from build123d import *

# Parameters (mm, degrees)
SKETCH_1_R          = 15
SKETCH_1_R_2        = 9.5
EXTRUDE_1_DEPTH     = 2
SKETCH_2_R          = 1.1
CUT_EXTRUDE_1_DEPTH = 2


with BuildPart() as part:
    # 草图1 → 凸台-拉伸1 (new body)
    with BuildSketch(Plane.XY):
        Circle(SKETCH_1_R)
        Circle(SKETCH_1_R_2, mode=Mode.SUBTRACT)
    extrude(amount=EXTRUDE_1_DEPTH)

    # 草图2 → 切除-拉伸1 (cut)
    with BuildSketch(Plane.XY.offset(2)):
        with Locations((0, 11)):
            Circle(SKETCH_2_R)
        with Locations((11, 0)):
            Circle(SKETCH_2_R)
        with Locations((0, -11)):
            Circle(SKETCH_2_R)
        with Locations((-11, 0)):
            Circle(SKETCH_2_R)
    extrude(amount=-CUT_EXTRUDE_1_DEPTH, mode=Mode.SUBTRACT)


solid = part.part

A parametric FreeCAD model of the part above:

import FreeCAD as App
import Part
import Sketcher
from FreeCAD import Vector
Q = App.Units.Quantity

doc = App.newDocument("Part")
body = doc.addObject("PartDesign::Body", "Body")

sketch1 = doc.addObject("Sketcher::SketchObject", "Sketch")
body.addObject(sketch1)
sketch1.AttachmentSupport = (doc.XY_Plane, [""])
sketch1.MapMode = "FlatFace"
sketch1.addGeometry([
    Part.Circle(Vector(0, 0, 0), Vector(0, 0, 1), 15),
    Part.Circle(Vector(0, 0, 0), Vector(0, 0, 1), 10),
], False)
sketch1.addConstraint([
    Sketcher.Constraint("Coincident", 0, 3, -1, 1),
    Sketcher.Constraint("Coincident", 1, 3, -1, 1),
    Sketcher.Constraint("Diameter", 0, Q("30 mm")),
    Sketcher.Constraint("Diameter", 1, Q("19 mm")),
])
pad1 = doc.addObject("PartDesign::Pad", "Pad")
body.addObject(pad1)
pad1.Profile = sketch1
pad1.Length = 2

sketch2 = doc.addObject("Sketcher::SketchObject", "Sketch001")
body.addObject(sketch2)
sketch2.AttachmentSupport = (doc.XY_Plane, [""])
sketch2.MapMode = "FlatFace"
sketch2.AttachmentOffset = App.Placement(Vector(0, 0, 2), App.Rotation())
sketch2.addGeometry([
    Part.Circle(Vector(0, 11, 0), Vector(0, 0, 1), 1.1),
    Part.Circle(Vector(11, 0, 0), Vector(0, 0, 1), 1.1),
    Part.Circle(Vector(0, -11, 0), Vector(0, 0, 1), 1.1),
    Part.Circle(Vector(-11, 0, 0), Vector(0, 0, 1), 1.1),
], False)
sketch2.addConstraint([
    Sketcher.Constraint("Equal", 0, 1),
    Sketcher.Constraint("Equal", 1, 2),
    Sketcher.Constraint("Equal", 2, 3),
    Sketcher.Constraint("Symmetric", 0, 3, 2, 3, -1, 1),
    Sketcher.Constraint("Symmetric", 1, 3, 3, 3, -1, 1),
    Sketcher.Constraint("PointOnObject", 0, 3, -2),
    Sketcher.Constraint("PointOnObject", 1, 3, -1),
    Sketcher.Constraint("Diameter", 0, Q("2.2 mm")),
    Sketcher.Constraint("DistanceY", -1, 1, 0, 3, Q("11 mm")),
    Sketcher.Constraint("DistanceX", -1, 1, 1, 3, Q("11 mm")),
])
pocket1 = doc.addObject("PartDesign::Pocket", "Pocket")
body.addObject(pocket1)
pocket1.Profile = sketch2
pocket1.Length = 2

doc.recompute()
